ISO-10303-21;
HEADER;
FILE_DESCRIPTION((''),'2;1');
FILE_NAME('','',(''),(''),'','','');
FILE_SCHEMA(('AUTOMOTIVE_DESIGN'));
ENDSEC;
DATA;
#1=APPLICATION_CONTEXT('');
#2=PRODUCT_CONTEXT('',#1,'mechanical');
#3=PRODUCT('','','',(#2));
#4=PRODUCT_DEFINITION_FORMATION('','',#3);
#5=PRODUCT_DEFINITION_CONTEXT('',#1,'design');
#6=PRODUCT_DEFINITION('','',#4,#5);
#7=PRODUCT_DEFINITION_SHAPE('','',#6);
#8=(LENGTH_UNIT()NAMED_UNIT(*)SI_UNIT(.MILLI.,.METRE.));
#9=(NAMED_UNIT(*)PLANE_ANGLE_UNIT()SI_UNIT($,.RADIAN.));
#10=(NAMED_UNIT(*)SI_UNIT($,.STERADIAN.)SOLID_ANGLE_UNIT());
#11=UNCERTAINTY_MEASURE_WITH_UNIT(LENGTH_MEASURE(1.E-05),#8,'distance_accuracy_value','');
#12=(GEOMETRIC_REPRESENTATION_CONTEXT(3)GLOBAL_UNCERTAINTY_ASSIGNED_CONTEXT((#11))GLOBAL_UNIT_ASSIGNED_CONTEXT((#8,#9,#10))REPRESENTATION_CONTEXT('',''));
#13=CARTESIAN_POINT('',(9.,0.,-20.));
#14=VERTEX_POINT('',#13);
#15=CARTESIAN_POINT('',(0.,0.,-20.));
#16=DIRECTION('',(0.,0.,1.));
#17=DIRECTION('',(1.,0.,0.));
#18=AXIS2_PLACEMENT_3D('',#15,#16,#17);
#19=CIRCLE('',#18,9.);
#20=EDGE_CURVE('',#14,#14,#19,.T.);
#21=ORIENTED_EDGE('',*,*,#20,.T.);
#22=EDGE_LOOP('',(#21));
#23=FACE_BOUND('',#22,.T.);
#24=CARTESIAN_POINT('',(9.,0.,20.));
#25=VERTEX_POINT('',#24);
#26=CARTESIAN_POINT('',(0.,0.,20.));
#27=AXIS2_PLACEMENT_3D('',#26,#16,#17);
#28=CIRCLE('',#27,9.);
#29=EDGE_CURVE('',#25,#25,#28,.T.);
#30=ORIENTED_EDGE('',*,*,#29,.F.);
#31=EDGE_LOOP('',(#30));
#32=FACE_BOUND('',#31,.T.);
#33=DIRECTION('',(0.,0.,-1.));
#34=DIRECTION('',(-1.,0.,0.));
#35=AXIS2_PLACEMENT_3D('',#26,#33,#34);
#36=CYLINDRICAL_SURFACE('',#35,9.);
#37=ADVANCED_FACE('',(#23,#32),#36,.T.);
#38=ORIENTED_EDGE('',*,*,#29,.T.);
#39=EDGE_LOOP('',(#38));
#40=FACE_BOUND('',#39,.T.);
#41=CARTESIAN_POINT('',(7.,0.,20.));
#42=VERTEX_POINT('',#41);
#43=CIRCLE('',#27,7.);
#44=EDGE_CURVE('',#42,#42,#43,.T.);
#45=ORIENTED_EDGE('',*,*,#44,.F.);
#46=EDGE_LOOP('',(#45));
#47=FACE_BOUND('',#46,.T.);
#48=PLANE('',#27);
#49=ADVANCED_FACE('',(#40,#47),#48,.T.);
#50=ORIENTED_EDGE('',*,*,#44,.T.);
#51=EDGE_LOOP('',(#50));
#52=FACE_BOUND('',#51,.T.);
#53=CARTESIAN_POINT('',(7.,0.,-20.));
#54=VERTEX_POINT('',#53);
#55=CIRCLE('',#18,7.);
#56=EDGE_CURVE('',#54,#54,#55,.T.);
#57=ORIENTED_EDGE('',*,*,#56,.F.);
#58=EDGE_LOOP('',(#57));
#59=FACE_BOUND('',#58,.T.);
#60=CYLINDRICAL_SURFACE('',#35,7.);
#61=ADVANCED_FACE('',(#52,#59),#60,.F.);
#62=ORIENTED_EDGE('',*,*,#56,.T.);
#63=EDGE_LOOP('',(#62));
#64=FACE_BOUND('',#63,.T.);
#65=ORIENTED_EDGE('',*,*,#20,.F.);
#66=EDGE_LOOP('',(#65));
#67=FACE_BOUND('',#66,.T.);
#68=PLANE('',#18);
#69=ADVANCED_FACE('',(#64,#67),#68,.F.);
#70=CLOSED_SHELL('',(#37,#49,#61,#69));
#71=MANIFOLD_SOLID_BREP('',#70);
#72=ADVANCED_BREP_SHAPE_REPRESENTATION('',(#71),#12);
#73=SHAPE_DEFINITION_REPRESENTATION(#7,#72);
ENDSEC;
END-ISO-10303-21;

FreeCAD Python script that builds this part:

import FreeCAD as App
import Part
import Sketcher

V = App.Vector
Q = App.Units.Quantity

doc = App.newDocument("Part")
params = doc.addObject("Spreadsheet::Sheet", "Params")
for row, (alias, value) in enumerate([
    ("sketch1_diameter", "18 mm"),
    ("sketch1_diameter2", "14 mm"),
    ("pad1_length", "40 mm"),
], start=1):
    params.set(f"A{row}", alias)
    params.set(f"B{row}", "=" + value)
    params.setAlias(f"B{row}", alias)

body = doc.addObject("PartDesign::Body", "Body")

sketch1 = doc.addObject("Sketcher::SketchObject", "Sketch")
body.addObject(sketch1)
sketch1.AttachmentSupport = (doc.XY_Plane, [""])
sketch1.MapMode = "FlatFace"
sketch1.addGeometry([
    Part.Circle(V(0, 0, 0), V(0, 0, 1), 9),
    Part.Circle(V(0, 0, 0), V(0, 0, 1), 7),
], False)
sketch1.addConstraint([
    Sketcher.Constraint("Coincident", 0, 3, -1, 1),
    Sketcher.Constraint("Coincident", 1, 3, -1, 1),
    Sketcher.Constraint("Diameter", 0, Q("18 mm")),
    Sketcher.Constraint("Diameter", 1, Q("14 mm")),
])
sketch1.setExpression("Constraints[2]", "Params.sketch1_diameter")
sketch1.setExpression("Constraints[3]", "Params.sketch1_diameter2")
pad1 = doc.addObject("PartDesign::Pad", "Pad")
body.addObject(pad1)
pad1.Profile = sketch1
pad1.setExpression("Length", "Params.pad1_length")
pad1.Midplane = True

doc.recompute()
